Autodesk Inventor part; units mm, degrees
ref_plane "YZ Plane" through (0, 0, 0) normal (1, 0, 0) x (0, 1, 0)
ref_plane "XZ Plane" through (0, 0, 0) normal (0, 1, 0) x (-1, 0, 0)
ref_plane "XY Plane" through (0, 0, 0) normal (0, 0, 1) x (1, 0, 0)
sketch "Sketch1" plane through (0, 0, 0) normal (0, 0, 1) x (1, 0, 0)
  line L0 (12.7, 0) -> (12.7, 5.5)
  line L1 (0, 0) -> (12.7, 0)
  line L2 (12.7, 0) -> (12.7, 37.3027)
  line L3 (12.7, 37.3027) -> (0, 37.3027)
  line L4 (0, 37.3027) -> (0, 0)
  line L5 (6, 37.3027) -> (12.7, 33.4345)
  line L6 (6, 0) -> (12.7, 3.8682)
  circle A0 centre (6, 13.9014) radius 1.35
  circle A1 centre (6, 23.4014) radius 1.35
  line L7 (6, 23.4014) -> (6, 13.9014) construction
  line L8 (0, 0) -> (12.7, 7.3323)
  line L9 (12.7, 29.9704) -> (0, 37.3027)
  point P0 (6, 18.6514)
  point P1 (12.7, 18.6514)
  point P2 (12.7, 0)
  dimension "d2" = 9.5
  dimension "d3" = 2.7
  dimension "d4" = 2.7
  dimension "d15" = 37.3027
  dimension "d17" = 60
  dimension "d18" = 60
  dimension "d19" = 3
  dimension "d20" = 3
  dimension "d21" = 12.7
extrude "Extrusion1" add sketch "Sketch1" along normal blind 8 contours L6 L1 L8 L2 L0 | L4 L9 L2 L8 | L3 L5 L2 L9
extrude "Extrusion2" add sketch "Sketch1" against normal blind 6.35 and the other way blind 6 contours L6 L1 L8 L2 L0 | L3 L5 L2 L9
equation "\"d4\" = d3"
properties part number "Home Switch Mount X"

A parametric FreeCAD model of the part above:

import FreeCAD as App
import Part
import Sketcher
from FreeCAD import Vector
Q = App.Units.Quantity

doc = App.newDocument("Part")
params = doc.addObject("Spreadsheet::Sheet", "Params")
for row, (alias, value) in enumerate([
    ("sketch1_diameter", "2.7 mm"),
    ("sketch1_width", "6 mm"),
    ("pad1_length", "8 mm"),
    ("sketch2_width", "6 mm"),
    ("pad2_length", "6.35 mm"),
    ("pad2_length2", "6 mm"),
], start=1):
    params.set(f"A{row}", alias)
    params.set(f"B{row}", "=" + value)
    params.setAlias(f"B{row}", alias)

body = doc.addObject("PartDesign::Body", "Body")

# Sketch on XY plane
sketch1 = body.newObject("Sketcher::SketchObject", "Sketch")
sketch1.AttachmentSupport = (doc.getObject("XY_Plane"), [""])
sketch1.MapMode = "FlatFace"
sketch1.addGeometry([
    Part.LineSegment(Vector(6, 0, 0), Vector(12.7, 3.9, 0)),  # 0
    Part.LineSegment(Vector(12.7, 3.9, 0), Vector(12.7, 33.4, 0)),  # 1
    Part.LineSegment(Vector(12.7, 33.4, 0), Vector(6, 37.3, 0)),  # 2
    Part.LineSegment(Vector(6, 37.3, 0), Vector(0, 37.3, 0)),  # 3
    Part.LineSegment(Vector(0, 37.3, 0), Vector(0, 0, 0)),  # 4
    Part.LineSegment(Vector(0, 0, 0), Vector(6, 0, 0)),  # 5
    Part.Circle(Vector(6, 23.4, 0), Vector(0, 0, 1), 1.4),  # 6
    Part.Circle(Vector(6, 13.9, 0), Vector(0, 0, 1), 1.4),  # 7
], False)
sketch1.addConstraint([
    Sketcher.Constraint("Coincident", 0, 2, 1, 1),
    Sketcher.Constraint("Coincident", 1, 2, 2, 1),
    Sketcher.Constraint("Coincident", 2, 2, 3, 1),
    Sketcher.Constraint("Coincident", 3, 2, 4, 1),
    Sketcher.Constraint("Coincident", 4, 2, 5, 1),
    Sketcher.Constraint("Coincident", 5, 2, 0, 1),
    Sketcher.Constraint("Vertical", 1),
    Sketcher.Constraint("Horizontal", 3),
    Sketcher.Constraint("Vertical", 4),
    Sketcher.Constraint("Horizontal", 5),
    Sketcher.Constraint("Coincident", 4, 2, -1, 1),
    Sketcher.Constraint("Equal", 6, 7),
    Sketcher.Constraint("Vertical", 6, 3, 7, 3),
    Sketcher.Constraint("Vertical", 7, 3, 2, 2),
    Sketcher.Constraint("Vertical", 2, 2, 5, 2),
    Sketcher.Constraint("Equal", 0, 2),
    Sketcher.Constraint("Diameter", 6, 2.7),
    Sketcher.Constraint("DistanceX", -1, 1, 0, 2, 12.7),
    Sketcher.Constraint("DistanceY", 7, 3, 6, 3, 9.5),
    Sketcher.Constraint("DistanceX", 3, 2, 3, 1, 6.0),
    Sketcher.Constraint("Angle", 0, Q("29.9997 deg")),
    Sketcher.Constraint("DistanceY", 4, 2, 4, 1, 37.3027),
    Sketcher.Constraint("DistanceY", 6, 3, 1, 2, 10.033),
])
sketch1.setExpression("Constraints[16]", "Params.sketch1_diameter")
sketch1.setExpression("Constraints[19]", "Params.sketch1_width")
pad1 = body.newObject("PartDesign::Pad", "Pad")
pad1.Profile = sketch1
pad1.setExpression("Length", "Params.pad1_length")

# Sketch on XY plane
sketch2 = body.newObject("Sketcher::SketchObject", "Sketch001")
sketch2.AttachmentSupport = (doc.getObject("XY_Plane"), [""])
sketch2.MapMode = "FlatFace"
sketch2.addGeometry([
    Part.LineSegment(Vector(6, 0, 0), Vector(12.7, 3.9, 0)),  # 0
    Part.LineSegment(Vector(12.7, 3.9, 0), Vector(12.7, 7.3, 0)),  # 1
    Part.LineSegment(Vector(12.7, 7.3, 0), Vector(0, 0, 0)),  # 2
    Part.LineSegment(Vector(0, 0, 0), Vector(6, 0, 0)),  # 3
    Part.LineSegment(Vector(6, 37.3, 0), Vector(0, 37.3, 0)),  # 4
    Part.LineSegment(Vector(0, 37.3, 0), Vector(12.7, 30, 0)),  # 5
    Part.LineSegment(Vector(12.7, 30, 0), Vector(12.7, 33.4, 0)),  # 6
    Part.LineSegment(Vector(12.7, 33.4, 0), Vector(6, 37.3, 0)),  # 7
], False)
sketch2.addConstraint([
    Sketcher.Constraint("Coincident", 0, 2, 1, 1),
    Sketcher.Constraint("Coincident", 1, 2, 2, 1),
    Sketcher.Constraint("Coincident", 2, 2, 3, 1),
    Sketcher.Constraint("Coincident", 3, 2, 0, 1),
    Sketcher.Constraint("Coincident", 4, 2, 5, 1),
    Sketcher.Constraint("Coincident", 5, 2, 6, 1),
    Sketcher.Constraint("Coincident", 6, 2, 7, 1),
    Sketcher.Constraint("Coincident", 7, 2, 4, 1),
    Sketcher.Constraint("Vertical", 1),
    Sketcher.Constraint("Horizontal", 3),
    Sketcher.Constraint("Horizontal", 4),
    Sketcher.Constraint("Vertical", 6),
    Sketcher.Constraint("Coincident", 2, 2, -1, 1),
    Sketcher.Constraint("PointOnObject", 4, 2, -2),
    Sketcher.Constraint("Parallel", 0, 2),
    Sketcher.Constraint("Parallel", 5, 7),
    Sketcher.Constraint("Vertical", 1, 2, 5, 2),
    Sketcher.Constraint("Vertical", 3, 2, 7, 2),
    Sketcher.Constraint("Equal", 1, 6),
    Sketcher.Constraint("DistanceX", -1, 1, 0, 2, 12.7),
    Sketcher.Constraint("DistanceX", 3, 1, 3, 2, 6.0),
    Sketcher.Constraint("Angle", 0, Q("29.9997 deg")),
    Sketcher.Constraint("DistanceY", -1, 1, 4, 2, 37.3027),
])
sketch2.setExpression("Constraints[20]", "Params.sketch2_width")
pad2 = body.newObject("PartDesign::Pad", "Pad001")
pad2.Profile = sketch2
pad2.Type = "TwoLengths"
pad2.setExpression("Length", "Params.pad2_length")
pad2.setExpression("Length2", "Params.pad2_length2")
pad2.Reversed = True

doc.recompute()
